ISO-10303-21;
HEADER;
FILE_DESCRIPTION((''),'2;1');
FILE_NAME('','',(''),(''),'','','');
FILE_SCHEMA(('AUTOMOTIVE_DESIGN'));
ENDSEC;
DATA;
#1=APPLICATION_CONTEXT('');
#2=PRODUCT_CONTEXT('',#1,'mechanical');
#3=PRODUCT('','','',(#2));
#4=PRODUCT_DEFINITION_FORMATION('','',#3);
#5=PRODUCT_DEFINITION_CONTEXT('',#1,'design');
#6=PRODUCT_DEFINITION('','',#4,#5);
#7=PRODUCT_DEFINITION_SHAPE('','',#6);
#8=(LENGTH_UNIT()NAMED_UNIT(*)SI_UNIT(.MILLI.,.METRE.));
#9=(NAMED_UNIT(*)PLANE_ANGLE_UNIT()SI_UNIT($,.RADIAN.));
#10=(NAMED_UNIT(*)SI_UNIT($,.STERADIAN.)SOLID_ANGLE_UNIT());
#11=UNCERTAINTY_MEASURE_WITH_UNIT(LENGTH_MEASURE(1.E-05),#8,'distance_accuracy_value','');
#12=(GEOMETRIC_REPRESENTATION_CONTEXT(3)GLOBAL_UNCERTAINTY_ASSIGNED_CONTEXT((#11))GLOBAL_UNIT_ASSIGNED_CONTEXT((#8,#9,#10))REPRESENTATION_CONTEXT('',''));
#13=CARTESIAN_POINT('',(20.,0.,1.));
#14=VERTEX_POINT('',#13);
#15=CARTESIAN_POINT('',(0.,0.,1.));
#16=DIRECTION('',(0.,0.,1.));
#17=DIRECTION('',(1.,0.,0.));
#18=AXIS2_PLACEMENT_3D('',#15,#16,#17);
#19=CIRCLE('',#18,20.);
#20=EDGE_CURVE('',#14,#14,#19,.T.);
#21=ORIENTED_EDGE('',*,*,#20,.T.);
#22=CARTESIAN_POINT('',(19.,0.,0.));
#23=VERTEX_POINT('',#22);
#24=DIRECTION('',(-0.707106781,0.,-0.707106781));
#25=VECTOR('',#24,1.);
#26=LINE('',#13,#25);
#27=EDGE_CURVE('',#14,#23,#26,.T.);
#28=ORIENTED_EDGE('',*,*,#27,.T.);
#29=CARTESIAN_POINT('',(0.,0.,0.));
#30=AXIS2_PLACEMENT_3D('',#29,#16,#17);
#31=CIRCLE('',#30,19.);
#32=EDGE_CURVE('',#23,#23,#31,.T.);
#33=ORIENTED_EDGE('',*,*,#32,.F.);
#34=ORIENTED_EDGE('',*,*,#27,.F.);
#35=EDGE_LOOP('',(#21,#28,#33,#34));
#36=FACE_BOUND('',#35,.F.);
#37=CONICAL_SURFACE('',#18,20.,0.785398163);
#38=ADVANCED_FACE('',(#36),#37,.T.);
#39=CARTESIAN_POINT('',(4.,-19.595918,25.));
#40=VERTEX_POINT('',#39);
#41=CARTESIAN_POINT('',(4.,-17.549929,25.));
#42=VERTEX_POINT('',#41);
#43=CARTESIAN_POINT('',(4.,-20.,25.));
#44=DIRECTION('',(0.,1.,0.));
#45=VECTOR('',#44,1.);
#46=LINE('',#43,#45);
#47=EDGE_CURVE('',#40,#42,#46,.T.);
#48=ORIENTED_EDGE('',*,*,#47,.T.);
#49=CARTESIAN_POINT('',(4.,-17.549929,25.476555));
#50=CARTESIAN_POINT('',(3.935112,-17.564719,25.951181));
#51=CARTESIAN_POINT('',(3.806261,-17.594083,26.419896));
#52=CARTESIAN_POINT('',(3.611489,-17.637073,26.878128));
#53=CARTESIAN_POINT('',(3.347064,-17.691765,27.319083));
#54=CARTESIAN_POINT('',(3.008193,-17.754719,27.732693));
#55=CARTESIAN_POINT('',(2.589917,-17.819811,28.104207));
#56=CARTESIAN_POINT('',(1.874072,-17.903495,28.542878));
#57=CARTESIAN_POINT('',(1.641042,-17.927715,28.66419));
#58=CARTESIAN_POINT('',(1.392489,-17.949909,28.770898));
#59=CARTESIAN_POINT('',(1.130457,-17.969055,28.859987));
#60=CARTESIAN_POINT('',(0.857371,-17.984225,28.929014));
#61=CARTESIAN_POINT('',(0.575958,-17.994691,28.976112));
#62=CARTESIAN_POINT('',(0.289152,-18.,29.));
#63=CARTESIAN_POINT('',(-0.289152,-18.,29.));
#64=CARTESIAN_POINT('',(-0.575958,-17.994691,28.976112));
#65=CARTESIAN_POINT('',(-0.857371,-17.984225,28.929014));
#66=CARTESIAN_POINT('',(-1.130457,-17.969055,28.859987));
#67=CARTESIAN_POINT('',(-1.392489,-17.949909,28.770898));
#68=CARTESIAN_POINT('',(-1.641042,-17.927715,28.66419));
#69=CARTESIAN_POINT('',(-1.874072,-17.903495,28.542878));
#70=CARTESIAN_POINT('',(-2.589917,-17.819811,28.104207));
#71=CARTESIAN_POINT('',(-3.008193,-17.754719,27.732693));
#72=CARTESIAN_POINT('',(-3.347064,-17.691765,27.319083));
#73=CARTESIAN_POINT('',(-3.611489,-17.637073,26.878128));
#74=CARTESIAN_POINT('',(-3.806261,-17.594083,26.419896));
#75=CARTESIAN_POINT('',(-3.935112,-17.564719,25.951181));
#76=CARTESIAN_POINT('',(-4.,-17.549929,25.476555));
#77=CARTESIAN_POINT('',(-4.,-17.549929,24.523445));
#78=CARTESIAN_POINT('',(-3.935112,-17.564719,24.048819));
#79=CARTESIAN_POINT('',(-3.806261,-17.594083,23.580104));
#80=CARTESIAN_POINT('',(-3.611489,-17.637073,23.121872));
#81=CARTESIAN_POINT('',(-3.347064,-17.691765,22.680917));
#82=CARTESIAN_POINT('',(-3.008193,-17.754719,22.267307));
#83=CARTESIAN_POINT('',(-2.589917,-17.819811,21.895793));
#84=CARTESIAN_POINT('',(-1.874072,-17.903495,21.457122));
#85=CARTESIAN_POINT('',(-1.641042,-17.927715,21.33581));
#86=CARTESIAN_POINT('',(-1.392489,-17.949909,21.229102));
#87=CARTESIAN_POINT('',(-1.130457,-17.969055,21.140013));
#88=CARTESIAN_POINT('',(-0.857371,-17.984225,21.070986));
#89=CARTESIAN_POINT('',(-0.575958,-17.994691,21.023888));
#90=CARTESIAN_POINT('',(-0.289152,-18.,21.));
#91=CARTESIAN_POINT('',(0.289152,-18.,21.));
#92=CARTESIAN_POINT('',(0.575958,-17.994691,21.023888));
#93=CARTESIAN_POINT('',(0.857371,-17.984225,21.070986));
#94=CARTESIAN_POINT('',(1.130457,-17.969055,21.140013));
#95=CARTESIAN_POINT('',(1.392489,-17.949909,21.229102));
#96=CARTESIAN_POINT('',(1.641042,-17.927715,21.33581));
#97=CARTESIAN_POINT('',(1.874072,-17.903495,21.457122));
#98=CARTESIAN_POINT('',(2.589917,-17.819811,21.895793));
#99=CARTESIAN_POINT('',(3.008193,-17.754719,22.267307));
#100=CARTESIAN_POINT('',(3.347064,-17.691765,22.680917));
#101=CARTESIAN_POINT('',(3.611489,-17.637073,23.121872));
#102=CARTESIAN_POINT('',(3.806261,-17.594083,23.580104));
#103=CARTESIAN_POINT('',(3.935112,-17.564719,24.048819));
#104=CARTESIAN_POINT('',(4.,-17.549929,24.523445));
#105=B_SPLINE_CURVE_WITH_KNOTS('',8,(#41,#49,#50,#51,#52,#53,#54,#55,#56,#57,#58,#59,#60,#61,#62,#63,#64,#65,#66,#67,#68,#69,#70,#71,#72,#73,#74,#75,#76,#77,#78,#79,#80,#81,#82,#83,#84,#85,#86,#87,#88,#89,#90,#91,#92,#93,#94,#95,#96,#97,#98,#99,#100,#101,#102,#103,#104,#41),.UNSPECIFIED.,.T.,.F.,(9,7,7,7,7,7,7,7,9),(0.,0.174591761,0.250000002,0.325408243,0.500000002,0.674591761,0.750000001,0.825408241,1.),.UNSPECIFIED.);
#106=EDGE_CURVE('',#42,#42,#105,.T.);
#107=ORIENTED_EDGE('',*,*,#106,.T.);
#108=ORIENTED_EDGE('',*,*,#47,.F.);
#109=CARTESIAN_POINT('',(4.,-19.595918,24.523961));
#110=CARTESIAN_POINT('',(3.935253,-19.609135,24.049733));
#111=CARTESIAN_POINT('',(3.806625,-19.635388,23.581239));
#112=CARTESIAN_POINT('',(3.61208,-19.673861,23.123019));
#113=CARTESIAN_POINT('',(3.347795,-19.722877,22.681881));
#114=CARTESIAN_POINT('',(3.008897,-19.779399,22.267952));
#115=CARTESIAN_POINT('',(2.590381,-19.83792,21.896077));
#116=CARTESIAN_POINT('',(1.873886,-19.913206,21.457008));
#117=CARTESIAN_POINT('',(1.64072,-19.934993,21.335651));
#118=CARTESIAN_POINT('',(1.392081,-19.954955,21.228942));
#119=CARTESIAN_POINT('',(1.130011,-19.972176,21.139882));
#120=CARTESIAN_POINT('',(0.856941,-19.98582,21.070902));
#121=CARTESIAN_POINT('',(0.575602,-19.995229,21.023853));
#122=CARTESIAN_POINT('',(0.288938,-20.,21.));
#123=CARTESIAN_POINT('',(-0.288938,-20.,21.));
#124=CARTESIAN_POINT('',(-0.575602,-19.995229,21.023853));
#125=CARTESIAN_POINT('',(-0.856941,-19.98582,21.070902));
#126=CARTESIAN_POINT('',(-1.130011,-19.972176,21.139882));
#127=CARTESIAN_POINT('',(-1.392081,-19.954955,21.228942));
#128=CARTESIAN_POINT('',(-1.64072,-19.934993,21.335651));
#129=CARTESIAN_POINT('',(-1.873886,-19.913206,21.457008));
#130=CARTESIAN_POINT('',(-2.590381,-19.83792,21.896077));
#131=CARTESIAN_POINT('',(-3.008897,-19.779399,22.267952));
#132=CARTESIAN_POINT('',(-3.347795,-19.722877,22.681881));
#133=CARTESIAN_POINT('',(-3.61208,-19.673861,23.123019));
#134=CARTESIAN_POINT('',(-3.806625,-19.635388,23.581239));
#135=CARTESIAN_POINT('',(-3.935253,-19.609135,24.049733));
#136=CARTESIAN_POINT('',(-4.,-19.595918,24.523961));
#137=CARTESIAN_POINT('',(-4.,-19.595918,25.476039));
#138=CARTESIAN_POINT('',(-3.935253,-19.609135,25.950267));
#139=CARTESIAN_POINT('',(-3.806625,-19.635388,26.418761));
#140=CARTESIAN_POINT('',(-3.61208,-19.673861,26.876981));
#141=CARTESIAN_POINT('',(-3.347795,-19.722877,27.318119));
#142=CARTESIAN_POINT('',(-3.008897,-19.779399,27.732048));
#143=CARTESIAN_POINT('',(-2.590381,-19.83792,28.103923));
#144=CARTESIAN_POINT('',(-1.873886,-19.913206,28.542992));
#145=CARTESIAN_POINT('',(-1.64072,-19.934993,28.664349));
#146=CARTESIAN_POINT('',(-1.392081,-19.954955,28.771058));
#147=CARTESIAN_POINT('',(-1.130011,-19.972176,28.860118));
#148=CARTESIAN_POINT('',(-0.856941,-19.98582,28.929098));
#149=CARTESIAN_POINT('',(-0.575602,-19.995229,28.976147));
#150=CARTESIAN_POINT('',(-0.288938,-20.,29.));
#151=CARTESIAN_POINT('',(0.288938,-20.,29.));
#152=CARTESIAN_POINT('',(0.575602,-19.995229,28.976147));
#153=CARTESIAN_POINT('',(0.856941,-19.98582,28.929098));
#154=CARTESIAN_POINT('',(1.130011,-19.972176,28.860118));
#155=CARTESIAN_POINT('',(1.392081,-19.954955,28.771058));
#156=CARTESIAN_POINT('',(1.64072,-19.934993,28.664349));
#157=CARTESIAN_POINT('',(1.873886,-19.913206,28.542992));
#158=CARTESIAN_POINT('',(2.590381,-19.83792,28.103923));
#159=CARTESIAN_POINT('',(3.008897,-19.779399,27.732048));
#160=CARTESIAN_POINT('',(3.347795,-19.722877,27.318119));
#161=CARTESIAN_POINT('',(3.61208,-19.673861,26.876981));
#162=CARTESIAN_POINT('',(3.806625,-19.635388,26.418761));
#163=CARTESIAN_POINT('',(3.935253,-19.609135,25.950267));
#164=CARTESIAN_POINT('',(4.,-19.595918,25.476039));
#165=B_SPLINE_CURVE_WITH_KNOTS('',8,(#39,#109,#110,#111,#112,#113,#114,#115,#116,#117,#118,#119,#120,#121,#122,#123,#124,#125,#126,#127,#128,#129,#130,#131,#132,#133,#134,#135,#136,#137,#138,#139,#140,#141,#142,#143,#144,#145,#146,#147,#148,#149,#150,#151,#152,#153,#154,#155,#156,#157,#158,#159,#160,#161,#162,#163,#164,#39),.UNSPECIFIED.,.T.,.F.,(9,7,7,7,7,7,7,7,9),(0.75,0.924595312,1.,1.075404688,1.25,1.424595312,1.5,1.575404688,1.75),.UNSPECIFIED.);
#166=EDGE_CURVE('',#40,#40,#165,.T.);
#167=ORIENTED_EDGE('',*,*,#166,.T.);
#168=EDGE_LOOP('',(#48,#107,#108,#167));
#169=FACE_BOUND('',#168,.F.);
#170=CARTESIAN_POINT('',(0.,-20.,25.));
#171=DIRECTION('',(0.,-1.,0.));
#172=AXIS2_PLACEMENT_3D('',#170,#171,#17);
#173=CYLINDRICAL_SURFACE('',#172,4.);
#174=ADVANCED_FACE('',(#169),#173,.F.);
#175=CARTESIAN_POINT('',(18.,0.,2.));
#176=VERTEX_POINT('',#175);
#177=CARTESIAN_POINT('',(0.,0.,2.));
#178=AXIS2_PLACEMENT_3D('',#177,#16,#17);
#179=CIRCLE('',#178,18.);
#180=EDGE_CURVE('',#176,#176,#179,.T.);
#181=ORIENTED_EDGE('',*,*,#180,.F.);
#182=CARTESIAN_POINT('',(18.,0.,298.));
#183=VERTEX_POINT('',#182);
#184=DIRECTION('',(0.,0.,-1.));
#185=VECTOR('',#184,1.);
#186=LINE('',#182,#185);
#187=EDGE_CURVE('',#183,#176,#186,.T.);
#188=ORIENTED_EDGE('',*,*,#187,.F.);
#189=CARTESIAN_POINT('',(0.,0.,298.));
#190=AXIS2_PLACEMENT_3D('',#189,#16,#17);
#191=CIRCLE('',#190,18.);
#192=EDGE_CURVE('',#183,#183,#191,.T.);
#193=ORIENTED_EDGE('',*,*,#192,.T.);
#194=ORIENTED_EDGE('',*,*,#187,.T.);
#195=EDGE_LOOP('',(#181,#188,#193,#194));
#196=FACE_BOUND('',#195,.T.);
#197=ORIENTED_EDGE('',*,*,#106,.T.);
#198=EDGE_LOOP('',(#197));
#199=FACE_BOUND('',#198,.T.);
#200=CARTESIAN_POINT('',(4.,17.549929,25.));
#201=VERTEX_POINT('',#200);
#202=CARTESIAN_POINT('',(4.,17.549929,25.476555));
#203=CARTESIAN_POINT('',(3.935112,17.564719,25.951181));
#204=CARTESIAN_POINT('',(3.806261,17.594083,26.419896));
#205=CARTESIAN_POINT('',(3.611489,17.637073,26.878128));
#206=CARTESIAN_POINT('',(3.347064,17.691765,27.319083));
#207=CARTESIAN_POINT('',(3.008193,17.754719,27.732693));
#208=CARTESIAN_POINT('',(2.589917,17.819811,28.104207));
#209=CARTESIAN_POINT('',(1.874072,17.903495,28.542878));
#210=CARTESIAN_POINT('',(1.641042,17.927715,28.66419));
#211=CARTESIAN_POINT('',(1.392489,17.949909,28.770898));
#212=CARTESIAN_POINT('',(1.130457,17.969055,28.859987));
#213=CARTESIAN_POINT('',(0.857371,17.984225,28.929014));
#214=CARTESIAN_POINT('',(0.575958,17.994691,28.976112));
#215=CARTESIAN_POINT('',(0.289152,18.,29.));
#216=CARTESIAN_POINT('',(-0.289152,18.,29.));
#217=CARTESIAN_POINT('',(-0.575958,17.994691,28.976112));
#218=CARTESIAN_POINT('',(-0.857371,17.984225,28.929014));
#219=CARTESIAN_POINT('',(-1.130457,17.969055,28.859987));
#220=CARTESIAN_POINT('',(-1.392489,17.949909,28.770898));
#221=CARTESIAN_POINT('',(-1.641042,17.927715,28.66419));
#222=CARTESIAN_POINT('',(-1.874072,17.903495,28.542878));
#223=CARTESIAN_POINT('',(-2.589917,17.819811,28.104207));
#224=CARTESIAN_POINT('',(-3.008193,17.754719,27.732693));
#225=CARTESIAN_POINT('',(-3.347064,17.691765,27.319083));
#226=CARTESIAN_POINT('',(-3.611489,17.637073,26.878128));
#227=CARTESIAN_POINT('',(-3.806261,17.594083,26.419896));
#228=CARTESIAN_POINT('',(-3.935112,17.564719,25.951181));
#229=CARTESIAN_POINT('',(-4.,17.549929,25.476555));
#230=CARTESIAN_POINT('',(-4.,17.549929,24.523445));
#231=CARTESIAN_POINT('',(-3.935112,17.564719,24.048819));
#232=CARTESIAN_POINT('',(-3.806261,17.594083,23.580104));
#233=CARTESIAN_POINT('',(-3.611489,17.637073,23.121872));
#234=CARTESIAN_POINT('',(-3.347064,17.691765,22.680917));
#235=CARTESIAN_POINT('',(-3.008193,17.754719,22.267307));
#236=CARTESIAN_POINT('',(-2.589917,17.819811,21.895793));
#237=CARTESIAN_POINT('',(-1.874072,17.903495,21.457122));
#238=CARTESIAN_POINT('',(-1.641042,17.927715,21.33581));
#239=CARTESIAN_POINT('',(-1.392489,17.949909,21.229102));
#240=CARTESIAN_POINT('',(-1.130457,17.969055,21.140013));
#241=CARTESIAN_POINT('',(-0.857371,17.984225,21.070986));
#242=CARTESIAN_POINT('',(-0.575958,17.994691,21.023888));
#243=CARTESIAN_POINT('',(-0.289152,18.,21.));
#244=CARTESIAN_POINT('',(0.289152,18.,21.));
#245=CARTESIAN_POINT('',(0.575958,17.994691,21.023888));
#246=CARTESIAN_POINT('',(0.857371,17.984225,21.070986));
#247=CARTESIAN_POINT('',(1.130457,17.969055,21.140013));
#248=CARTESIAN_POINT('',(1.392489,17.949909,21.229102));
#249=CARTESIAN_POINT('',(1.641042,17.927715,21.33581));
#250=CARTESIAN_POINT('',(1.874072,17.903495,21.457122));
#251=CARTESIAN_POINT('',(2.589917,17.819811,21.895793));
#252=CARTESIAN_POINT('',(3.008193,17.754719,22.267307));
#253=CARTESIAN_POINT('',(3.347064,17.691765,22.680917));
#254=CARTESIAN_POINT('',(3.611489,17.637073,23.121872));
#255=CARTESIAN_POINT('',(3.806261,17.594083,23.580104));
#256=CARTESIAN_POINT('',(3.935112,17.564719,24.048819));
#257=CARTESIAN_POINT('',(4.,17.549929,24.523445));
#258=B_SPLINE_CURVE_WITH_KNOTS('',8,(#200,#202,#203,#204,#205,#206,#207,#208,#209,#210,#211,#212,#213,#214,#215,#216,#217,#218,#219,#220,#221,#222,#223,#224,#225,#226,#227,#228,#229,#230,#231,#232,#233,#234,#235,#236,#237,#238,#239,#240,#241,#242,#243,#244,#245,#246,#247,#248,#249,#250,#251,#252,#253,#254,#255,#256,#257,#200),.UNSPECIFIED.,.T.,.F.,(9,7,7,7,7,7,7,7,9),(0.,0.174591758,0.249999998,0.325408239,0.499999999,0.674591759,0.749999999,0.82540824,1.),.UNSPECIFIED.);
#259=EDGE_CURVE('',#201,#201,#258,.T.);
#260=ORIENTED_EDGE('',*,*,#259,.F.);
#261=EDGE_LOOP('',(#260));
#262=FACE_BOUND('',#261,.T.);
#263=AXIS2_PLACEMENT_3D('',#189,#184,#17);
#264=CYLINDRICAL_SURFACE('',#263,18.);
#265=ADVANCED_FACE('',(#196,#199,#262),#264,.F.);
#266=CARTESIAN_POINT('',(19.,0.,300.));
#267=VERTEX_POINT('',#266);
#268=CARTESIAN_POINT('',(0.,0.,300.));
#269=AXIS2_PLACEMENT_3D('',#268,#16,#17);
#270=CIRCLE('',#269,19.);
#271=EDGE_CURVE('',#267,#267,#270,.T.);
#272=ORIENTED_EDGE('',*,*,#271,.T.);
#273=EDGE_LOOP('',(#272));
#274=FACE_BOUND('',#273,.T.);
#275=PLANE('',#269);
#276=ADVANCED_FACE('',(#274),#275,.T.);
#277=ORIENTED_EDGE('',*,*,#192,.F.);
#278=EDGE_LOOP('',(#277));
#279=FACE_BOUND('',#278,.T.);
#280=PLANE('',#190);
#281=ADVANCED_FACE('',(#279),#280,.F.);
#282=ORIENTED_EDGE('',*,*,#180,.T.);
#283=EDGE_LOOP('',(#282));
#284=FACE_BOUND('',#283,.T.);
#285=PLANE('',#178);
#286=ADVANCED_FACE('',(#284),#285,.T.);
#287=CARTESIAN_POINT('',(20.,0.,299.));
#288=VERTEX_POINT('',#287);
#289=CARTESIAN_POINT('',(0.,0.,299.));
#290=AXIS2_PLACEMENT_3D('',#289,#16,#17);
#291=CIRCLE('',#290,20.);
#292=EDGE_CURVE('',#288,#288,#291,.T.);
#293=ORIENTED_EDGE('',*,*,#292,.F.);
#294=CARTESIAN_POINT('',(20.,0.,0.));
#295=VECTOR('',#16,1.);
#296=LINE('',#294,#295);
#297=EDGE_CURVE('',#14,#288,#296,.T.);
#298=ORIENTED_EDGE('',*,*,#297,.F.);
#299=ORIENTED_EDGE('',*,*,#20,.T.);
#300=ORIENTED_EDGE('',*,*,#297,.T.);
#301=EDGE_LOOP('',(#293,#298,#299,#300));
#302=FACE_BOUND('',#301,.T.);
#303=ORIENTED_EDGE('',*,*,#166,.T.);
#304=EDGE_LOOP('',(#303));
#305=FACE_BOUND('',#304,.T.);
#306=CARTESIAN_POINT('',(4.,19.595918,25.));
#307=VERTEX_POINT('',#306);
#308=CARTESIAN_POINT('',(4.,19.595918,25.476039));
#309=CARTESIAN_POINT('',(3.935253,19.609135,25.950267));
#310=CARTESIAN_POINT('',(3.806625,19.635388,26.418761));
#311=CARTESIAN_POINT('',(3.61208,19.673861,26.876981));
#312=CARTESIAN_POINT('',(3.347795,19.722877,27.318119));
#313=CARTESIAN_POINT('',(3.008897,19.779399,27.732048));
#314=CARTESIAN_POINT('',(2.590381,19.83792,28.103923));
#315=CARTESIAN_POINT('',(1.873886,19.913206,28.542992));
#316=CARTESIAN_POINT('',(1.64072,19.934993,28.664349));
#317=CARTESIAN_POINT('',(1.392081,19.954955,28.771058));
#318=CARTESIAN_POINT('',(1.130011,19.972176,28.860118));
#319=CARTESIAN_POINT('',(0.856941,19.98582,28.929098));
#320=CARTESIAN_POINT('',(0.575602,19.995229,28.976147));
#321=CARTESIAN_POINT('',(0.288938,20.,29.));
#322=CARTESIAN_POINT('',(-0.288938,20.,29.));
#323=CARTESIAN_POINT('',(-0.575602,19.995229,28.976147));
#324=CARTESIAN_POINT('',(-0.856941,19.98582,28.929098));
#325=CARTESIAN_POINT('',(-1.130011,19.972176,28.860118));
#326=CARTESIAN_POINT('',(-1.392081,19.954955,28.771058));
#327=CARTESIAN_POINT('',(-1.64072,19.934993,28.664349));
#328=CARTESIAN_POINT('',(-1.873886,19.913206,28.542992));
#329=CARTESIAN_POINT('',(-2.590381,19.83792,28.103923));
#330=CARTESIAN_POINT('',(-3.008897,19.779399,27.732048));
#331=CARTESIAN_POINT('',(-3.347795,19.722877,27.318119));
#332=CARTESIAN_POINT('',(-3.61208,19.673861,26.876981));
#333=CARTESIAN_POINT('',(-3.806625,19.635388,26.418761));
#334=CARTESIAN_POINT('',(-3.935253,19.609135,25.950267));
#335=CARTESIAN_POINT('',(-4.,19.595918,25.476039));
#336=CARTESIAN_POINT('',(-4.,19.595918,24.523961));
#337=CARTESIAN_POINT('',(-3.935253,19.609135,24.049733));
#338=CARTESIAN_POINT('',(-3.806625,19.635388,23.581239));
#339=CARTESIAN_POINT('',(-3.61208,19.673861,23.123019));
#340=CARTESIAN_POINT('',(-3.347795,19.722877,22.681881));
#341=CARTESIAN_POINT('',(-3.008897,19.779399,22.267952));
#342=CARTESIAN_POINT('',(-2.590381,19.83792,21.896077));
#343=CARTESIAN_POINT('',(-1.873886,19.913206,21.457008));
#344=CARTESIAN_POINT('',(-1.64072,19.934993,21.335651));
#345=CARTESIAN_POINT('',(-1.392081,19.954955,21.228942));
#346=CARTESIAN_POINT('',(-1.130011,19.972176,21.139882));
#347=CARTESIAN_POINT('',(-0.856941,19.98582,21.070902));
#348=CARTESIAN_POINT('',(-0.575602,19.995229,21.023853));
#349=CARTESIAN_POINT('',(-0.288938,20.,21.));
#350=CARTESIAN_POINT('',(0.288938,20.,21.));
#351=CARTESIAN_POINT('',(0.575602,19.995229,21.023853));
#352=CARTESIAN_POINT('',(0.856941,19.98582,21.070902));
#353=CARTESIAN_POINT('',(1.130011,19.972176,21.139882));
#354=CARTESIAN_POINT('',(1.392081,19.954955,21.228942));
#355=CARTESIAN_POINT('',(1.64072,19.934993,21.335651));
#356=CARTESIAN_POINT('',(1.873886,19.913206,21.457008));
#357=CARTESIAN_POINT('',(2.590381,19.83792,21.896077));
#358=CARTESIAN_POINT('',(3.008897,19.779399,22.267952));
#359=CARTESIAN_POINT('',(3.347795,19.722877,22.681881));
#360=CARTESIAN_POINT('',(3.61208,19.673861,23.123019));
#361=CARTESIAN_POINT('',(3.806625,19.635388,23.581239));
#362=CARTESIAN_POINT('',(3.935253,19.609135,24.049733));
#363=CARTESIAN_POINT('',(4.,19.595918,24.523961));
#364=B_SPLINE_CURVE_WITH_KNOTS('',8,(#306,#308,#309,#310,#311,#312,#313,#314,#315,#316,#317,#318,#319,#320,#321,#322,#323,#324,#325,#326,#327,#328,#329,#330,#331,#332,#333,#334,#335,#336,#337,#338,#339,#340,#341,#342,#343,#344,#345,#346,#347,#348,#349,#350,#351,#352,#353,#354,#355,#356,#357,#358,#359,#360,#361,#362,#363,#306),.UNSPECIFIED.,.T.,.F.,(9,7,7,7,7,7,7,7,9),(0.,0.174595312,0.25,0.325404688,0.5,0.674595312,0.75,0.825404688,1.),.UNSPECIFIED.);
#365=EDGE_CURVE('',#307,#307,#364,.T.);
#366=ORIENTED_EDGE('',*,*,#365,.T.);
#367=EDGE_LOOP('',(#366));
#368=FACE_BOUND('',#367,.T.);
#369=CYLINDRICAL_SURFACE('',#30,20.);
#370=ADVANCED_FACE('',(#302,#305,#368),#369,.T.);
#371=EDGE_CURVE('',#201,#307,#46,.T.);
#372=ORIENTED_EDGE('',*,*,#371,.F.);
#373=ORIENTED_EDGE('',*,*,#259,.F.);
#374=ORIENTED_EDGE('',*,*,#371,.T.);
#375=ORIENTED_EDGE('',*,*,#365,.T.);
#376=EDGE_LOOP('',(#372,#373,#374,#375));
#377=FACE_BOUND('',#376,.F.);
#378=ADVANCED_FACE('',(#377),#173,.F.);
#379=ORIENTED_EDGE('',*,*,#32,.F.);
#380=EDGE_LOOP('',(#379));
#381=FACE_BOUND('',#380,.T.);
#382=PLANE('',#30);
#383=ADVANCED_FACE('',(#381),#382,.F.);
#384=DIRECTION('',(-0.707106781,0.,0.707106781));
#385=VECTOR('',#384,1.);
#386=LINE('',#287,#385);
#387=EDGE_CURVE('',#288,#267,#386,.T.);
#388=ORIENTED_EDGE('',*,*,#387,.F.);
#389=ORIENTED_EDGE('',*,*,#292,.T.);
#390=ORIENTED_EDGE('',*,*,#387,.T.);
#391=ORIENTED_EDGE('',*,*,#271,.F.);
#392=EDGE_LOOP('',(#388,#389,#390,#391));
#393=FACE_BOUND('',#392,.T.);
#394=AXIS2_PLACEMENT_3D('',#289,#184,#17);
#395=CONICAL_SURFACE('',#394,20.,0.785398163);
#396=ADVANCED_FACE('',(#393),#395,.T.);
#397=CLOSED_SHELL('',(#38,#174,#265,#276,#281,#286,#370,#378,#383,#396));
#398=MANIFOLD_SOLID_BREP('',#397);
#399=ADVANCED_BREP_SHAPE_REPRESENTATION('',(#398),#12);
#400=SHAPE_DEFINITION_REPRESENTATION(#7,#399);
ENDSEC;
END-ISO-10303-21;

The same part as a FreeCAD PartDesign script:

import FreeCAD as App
import Part
import Sketcher


def edges_at(feature, points):
    """Names of the edges that pass closest to the given points."""
    edges = feature.Shape.Edges
    near = lambda p: min(range(len(edges)), key=lambda i: edges[i].distToShape(Part.Vertex(*p))[0])
    return sorted({f"Edge{near(p) + 1}" for p in points})


def add_polygon(sketch, points):
    """Adds a closed chain of lines whose ends are joined by coincident constraints."""
    first, n = sketch.GeometryCount, len(points)
    for a, b in zip(points, points[1:] + points[:1]):
        sketch.addGeometry(Part.LineSegment(App.Vector(*a, 0), App.Vector(*b, 0)), False)
    for i in range(n):
        sketch.addConstraint(Sketcher.Constraint("Coincident", first + i, 2, first + (i + 1) % n, 1))

doc = App.newDocument("Part")
body = doc.addObject("PartDesign::Body", "Body")

sketch1 = body.newObject("Sketcher::SketchObject", "Sketch")
sketch1.AttachmentSupport = (doc.getObject("XZ_Plane"), [""])
sketch1.MapMode = "FlatFace"
add_polygon(sketch1, [(0, 2), (0, 0), (20, 0), (20, 300), (0, 300), (0, 298), (18, 298), (18, 2)])
sketch1.addConstraint([
    Sketcher.Constraint("Vertical", 0),
    Sketcher.Constraint("Horizontal", 1),
    Sketcher.Constraint("Vertical", 2),
    Sketcher.Constraint("Horizontal", 3),
    Sketcher.Constraint("Vertical", 4),
    Sketcher.Constraint("Horizontal", 5),
    Sketcher.Constraint("Vertical", 6),
    Sketcher.Constraint("Horizontal", 7),
    Sketcher.Constraint("Coincident", 0, 2, -1, 1),
    Sketcher.Constraint("PointOnObject", 3, 2, -2),
    Sketcher.Constraint("Equal", 0, 4),
    Sketcher.Constraint("DistanceX", 1, 1, 1, 2, 20.0),
    Sketcher.Constraint("DistanceX", 5, 1, 5, 2, 18.0),
    Sketcher.Constraint("DistanceY", 0, 2, 0, 1, 2.0),
    Sketcher.Constraint("DistanceY", 2, 1, 2, 2, 300.0),
])
revolution = body.newObject("PartDesign::Revolution", "Revolution")
revolution.Profile = sketch1
revolution.ReferenceAxis = (sketch1, ["V_Axis"])
revolution.Angle = 360
doc.recompute()

chamfer = body.newObject("PartDesign::Chamfer", "Chamfer")
chamfer.Base = (revolution, edges_at(revolution, [(-20, 0, 300)]))
chamfer.Size = 1
doc.recompute()

chamfer2 = body.newObject("PartDesign::Chamfer", "Chamfer001")
chamfer2.Base = (chamfer, edges_at(chamfer, [(-20, 0, 0)]))
chamfer2.Size = 1

sketch2 = body.newObject("Sketcher::SketchObject", "Sketch001")
sketch2.AttachmentSupport = (doc.getObject("XZ_Plane"), [""])
sketch2.MapMode = "FlatFace"
sketch2.AttachmentOffset = App.Placement(App.Vector(0, 0, 20), App.Rotation())
sketch2.addGeometry(Part.Circle(App.Vector(0, 25, 0), App.Vector(0, 0, 1), 4), False)
sketch2.addConstraint([
    Sketcher.Constraint("PointOnObject", 0, 3, -2),
    Sketcher.Constraint("Diameter", 0, 8.0),
    Sketcher.Constraint("DistanceY", -1, 1, 0, 3, 25.0),
])
pocket1 = body.newObject("PartDesign::Pocket", "Pocket")
pocket1.Profile = sketch2
pocket1.Length = 40

doc.recompute()
